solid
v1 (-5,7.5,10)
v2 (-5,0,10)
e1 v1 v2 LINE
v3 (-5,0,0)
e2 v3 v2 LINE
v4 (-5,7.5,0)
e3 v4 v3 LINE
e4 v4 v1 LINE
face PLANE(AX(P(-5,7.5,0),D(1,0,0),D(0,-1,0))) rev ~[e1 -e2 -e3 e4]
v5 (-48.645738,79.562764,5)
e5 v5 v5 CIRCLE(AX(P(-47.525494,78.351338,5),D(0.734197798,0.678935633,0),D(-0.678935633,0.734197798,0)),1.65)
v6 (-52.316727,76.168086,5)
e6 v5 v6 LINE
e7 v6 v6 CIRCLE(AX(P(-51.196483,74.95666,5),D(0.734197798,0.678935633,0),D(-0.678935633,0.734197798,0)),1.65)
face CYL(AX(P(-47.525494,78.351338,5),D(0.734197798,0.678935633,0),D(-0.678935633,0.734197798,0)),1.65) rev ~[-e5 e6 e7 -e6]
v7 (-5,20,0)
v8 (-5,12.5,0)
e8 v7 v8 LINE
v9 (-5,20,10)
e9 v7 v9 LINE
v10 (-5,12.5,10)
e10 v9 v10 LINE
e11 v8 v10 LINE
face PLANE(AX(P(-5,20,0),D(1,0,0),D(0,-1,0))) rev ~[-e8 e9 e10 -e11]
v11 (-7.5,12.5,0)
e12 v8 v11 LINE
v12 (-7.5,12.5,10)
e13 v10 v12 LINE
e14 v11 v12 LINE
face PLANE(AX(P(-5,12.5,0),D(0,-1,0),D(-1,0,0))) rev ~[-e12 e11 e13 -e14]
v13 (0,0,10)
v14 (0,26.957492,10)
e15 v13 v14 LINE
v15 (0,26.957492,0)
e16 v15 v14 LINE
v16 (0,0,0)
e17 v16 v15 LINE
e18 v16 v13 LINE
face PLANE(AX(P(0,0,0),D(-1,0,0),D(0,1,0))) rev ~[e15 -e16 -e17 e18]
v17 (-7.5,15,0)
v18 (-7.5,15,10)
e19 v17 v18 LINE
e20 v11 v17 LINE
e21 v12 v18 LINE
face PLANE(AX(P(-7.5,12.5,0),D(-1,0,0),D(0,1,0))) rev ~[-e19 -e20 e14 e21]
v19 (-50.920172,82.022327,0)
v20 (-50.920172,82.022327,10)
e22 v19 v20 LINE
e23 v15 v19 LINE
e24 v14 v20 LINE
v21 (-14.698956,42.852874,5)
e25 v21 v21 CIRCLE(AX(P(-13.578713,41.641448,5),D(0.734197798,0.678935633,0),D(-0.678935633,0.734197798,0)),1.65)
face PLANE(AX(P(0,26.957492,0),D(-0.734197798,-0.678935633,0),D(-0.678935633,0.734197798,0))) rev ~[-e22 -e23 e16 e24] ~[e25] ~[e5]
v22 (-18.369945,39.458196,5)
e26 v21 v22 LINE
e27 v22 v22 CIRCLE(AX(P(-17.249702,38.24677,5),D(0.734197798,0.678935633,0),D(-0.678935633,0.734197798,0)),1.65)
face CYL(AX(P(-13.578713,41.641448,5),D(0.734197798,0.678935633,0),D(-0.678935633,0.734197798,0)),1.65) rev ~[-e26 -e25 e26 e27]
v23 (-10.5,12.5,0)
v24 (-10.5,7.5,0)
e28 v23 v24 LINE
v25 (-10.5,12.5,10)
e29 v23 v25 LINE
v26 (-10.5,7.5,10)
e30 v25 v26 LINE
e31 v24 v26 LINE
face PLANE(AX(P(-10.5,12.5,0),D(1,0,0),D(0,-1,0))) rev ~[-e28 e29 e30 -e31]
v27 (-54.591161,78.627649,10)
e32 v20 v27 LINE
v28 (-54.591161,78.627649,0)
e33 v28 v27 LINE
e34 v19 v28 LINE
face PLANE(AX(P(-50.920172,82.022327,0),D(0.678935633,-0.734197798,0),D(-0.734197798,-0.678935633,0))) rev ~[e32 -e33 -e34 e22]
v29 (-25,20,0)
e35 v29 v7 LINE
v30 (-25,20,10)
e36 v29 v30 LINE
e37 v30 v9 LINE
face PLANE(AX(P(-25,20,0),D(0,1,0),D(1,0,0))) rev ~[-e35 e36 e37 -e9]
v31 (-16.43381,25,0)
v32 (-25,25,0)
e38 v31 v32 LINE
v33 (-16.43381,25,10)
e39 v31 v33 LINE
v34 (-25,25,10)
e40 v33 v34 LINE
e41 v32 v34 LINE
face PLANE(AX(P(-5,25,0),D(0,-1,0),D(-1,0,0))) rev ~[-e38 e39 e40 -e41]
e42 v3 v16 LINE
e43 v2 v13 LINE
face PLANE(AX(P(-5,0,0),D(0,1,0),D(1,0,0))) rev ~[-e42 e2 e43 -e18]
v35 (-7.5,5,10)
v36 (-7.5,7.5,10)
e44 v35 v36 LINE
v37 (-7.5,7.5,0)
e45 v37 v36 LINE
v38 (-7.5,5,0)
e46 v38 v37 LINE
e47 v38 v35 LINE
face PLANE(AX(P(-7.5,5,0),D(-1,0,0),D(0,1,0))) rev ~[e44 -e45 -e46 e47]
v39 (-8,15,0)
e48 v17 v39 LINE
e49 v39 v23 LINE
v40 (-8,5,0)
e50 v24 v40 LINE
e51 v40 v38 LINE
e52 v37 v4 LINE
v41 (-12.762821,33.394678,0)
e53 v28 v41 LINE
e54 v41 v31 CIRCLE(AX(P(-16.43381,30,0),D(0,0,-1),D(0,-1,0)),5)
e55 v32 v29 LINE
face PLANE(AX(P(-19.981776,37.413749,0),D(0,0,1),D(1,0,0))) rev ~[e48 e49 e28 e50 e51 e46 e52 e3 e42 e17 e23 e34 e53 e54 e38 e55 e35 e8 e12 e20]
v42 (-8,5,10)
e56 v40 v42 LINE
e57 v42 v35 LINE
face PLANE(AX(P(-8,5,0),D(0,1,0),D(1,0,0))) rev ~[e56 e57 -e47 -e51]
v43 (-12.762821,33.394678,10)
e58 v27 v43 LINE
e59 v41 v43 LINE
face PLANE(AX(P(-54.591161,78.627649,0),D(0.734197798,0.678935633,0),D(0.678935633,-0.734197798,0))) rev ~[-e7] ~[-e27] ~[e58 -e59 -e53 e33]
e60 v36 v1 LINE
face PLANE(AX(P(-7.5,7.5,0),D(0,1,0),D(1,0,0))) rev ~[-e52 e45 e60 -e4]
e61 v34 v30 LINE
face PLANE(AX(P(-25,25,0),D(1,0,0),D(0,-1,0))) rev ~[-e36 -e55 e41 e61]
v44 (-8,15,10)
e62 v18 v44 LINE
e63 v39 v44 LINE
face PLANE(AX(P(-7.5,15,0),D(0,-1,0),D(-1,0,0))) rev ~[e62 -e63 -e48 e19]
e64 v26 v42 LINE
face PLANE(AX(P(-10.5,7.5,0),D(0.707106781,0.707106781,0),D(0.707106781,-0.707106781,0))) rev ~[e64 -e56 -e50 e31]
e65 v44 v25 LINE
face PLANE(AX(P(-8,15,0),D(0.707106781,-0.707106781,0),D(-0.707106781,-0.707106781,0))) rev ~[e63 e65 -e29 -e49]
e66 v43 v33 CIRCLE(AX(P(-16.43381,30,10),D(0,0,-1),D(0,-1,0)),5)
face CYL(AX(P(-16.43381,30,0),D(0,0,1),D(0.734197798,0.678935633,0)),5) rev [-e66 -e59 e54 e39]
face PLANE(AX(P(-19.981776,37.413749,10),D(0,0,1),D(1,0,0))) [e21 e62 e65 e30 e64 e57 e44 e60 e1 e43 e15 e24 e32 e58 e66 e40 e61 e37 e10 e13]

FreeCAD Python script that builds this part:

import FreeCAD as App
import Part
import Sketcher
from FreeCAD import Vector


def edges_at(feature, points):
    """Names of the edges that pass closest to the given points."""
    edges = feature.Shape.Edges
    near = lambda p: min(range(len(edges)), key=lambda i: edges[i].distToShape(Part.Vertex(*p))[0])
    return sorted({f"Edge{near(p) + 1}" for p in points})


def add_polygon(sketch, points):
    """Adds a closed chain of lines whose ends are joined by coincident constraints."""
    first, n = sketch.GeometryCount, len(points)
    for a, b in zip(points, points[1:] + points[:1]):
        sketch.addGeometry(Part.LineSegment(App.Vector(*a, 0), App.Vector(*b, 0)), False)
    for i in range(n):
        sketch.addConstraint(Sketcher.Constraint("Coincident", first + i, 2, first + (i + 1) % n, 1))

doc = App.newDocument("Part")
body = doc.addObject("PartDesign::Body", "Body")

# Sketch on XY plane
sketch1 = body.newObject("Sketcher::SketchObject", "Sketch")
sketch1.AttachmentSupport = (doc.getObject("XY_Plane"), [""])
sketch1.MapMode = "FlatFace"
add_polygon(sketch1, [(-25, 25), (-25, 20), (-5, 20), (-5, 12.5), (-7.5, 12.5), (-7.5, 15), (-8, 15), (-10.5, 12.5), (-10.5, 7.5), (-8, 5), (-7.5, 5), (-7.5, 7.5), (-5, 7.5), (-5, 0), (0, 0), (0, 26.957492), (-50.920172, 82.022327), (-54.591161, 78.627649), (-5, 25)])  # lines 0-18
sketch1.addConstraint([
    Sketcher.Constraint("Vertical", 0),
    Sketcher.Constraint("Horizontal", 1),
    Sketcher.Constraint("Vertical", 2),
    Sketcher.Constraint("Horizontal", 3),
    Sketcher.Constraint("Vertical", 4),
    Sketcher.Constraint("Horizontal", 5),
    Sketcher.Constraint("Vertical", 7),
    Sketcher.Constraint("Horizontal", 9),
    Sketcher.Constraint("Vertical", 10),
    Sketcher.Constraint("Horizontal", 11),
    Sketcher.Constraint("Vertical", 12),
    Sketcher.Constraint("Horizontal", 13),
    Sketcher.Constraint("Vertical", 14),
    Sketcher.Constraint("Horizontal", 18),
    Sketcher.Constraint("Coincident", 13, 2, -1, 1),
    Sketcher.Constraint("Perpendicular", 6, 8),
    Sketcher.Constraint("Perpendicular", 15, 16),
    Sketcher.Constraint("Perpendicular", 16, 17),
    Sketcher.Constraint("Horizontal", 3, 2, 6, 2),
    Sketcher.Constraint("Horizontal", 7, 2, 10, 2),
    Sketcher.Constraint("Vertical", 5, 2, 8, 2),
    Sketcher.Constraint("Vertical", 4, 2, 9, 2),
    Sketcher.Constraint("Vertical", 2, 2, 11, 2),
    Sketcher.Constraint("Vertical", 12, 2, 17, 2),
    Sketcher.Constraint("Equal", 13, 0),
    Sketcher.Constraint("Equal", 11, 4),
    Sketcher.Constraint("Equal", 0, 7),
    Sketcher.Constraint("Equal", 4, 10),
    Sketcher.Constraint("Equal", 2, 12),
    Sketcher.Constraint("DistanceX", 1, 1, 1, 2, 20.0),
    Sketcher.Constraint("DistanceX", 13, 1, 13, 2, 5.0),
    Sketcher.Constraint("Distance", 15, 75.0),
    Sketcher.Constraint("Distance", 16, 5.0),
    Sketcher.Constraint("DistanceX", 3, 2, 3, 1, 2.5),
    Sketcher.Constraint("DistanceX", 5, 2, 5, 1, 0.5),
    Sketcher.Constraint("DistanceY", 2, 2, 2, 1, 7.5),
    Sketcher.Constraint("DistanceY", 14, 1, 14, 2, 26.957492),
])
pad1 = body.newObject("PartDesign::Pad", "Pad")
pad1.Profile = sketch1
pad1.Length = 10
doc.recompute()

fillet = body.newObject("PartDesign::Fillet", "Fillet")
fillet.Base = (pad1, edges_at(pad1, [(-5, 25, 5)]))
fillet.Radius = 5

# Sketch on an angled plane
sketch2 = body.newObject("Sketcher::SketchObject", "Sketch001")
sketch2.Placement = App.Placement(Vector(13.437583, 12.426153, 0), App.Rotation(Vector(-0.678935633, 0.734197798, 0), Vector(0, 0, 1), Vector(0.734197798, 0.678935633, 0), "ZXY"))
sketch2.addGeometry(Part.Circle(Vector(89.792131, 5, 0), Vector(0, 0, 1), 1.65), False)
sketch2.addConstraint([
    Sketcher.Constraint("Diameter", 0, 3.3),
    Sketcher.Constraint("DistanceY", -1, 1, 0, 3, 5.0),
    Sketcher.Constraint("DistanceX", -1, 1, 0, 3, 89.792131),
])
pocket1 = body.newObject("PartDesign::Pocket", "Pocket")
pocket1.Profile = sketch2
pocket1.Type = "ThroughAll"

# Sketch on an angled plane
sketch3 = body.newObject("Sketcher::SketchObject", "Sketch002")
sketch3.Placement = App.Placement(Vector(13.437583, 12.426153, 0), App.Rotation(Vector(-0.678935633, 0.734197798, 0), Vector(0, 0, 1), Vector(0.734197798, 0.678935633, 0), "ZXY"))
sketch3.addGeometry(Part.Circle(Vector(39.792131, 5, 0), Vector(0, 0, 1), 1.65), False)
sketch3.addConstraint([
    Sketcher.Constraint("Diameter", 0, 3.3),
    Sketcher.Constraint("DistanceY", -1, 1, 0, 3, 5.0),
    Sketcher.Constraint("DistanceX", -1, 1, 0, 3, 39.792131),
])
pocket2 = body.newObject("PartDesign::Pocket", "Pocket001")
pocket2.Profile = sketch3
pocket2.Length = 25

doc.recompute()
